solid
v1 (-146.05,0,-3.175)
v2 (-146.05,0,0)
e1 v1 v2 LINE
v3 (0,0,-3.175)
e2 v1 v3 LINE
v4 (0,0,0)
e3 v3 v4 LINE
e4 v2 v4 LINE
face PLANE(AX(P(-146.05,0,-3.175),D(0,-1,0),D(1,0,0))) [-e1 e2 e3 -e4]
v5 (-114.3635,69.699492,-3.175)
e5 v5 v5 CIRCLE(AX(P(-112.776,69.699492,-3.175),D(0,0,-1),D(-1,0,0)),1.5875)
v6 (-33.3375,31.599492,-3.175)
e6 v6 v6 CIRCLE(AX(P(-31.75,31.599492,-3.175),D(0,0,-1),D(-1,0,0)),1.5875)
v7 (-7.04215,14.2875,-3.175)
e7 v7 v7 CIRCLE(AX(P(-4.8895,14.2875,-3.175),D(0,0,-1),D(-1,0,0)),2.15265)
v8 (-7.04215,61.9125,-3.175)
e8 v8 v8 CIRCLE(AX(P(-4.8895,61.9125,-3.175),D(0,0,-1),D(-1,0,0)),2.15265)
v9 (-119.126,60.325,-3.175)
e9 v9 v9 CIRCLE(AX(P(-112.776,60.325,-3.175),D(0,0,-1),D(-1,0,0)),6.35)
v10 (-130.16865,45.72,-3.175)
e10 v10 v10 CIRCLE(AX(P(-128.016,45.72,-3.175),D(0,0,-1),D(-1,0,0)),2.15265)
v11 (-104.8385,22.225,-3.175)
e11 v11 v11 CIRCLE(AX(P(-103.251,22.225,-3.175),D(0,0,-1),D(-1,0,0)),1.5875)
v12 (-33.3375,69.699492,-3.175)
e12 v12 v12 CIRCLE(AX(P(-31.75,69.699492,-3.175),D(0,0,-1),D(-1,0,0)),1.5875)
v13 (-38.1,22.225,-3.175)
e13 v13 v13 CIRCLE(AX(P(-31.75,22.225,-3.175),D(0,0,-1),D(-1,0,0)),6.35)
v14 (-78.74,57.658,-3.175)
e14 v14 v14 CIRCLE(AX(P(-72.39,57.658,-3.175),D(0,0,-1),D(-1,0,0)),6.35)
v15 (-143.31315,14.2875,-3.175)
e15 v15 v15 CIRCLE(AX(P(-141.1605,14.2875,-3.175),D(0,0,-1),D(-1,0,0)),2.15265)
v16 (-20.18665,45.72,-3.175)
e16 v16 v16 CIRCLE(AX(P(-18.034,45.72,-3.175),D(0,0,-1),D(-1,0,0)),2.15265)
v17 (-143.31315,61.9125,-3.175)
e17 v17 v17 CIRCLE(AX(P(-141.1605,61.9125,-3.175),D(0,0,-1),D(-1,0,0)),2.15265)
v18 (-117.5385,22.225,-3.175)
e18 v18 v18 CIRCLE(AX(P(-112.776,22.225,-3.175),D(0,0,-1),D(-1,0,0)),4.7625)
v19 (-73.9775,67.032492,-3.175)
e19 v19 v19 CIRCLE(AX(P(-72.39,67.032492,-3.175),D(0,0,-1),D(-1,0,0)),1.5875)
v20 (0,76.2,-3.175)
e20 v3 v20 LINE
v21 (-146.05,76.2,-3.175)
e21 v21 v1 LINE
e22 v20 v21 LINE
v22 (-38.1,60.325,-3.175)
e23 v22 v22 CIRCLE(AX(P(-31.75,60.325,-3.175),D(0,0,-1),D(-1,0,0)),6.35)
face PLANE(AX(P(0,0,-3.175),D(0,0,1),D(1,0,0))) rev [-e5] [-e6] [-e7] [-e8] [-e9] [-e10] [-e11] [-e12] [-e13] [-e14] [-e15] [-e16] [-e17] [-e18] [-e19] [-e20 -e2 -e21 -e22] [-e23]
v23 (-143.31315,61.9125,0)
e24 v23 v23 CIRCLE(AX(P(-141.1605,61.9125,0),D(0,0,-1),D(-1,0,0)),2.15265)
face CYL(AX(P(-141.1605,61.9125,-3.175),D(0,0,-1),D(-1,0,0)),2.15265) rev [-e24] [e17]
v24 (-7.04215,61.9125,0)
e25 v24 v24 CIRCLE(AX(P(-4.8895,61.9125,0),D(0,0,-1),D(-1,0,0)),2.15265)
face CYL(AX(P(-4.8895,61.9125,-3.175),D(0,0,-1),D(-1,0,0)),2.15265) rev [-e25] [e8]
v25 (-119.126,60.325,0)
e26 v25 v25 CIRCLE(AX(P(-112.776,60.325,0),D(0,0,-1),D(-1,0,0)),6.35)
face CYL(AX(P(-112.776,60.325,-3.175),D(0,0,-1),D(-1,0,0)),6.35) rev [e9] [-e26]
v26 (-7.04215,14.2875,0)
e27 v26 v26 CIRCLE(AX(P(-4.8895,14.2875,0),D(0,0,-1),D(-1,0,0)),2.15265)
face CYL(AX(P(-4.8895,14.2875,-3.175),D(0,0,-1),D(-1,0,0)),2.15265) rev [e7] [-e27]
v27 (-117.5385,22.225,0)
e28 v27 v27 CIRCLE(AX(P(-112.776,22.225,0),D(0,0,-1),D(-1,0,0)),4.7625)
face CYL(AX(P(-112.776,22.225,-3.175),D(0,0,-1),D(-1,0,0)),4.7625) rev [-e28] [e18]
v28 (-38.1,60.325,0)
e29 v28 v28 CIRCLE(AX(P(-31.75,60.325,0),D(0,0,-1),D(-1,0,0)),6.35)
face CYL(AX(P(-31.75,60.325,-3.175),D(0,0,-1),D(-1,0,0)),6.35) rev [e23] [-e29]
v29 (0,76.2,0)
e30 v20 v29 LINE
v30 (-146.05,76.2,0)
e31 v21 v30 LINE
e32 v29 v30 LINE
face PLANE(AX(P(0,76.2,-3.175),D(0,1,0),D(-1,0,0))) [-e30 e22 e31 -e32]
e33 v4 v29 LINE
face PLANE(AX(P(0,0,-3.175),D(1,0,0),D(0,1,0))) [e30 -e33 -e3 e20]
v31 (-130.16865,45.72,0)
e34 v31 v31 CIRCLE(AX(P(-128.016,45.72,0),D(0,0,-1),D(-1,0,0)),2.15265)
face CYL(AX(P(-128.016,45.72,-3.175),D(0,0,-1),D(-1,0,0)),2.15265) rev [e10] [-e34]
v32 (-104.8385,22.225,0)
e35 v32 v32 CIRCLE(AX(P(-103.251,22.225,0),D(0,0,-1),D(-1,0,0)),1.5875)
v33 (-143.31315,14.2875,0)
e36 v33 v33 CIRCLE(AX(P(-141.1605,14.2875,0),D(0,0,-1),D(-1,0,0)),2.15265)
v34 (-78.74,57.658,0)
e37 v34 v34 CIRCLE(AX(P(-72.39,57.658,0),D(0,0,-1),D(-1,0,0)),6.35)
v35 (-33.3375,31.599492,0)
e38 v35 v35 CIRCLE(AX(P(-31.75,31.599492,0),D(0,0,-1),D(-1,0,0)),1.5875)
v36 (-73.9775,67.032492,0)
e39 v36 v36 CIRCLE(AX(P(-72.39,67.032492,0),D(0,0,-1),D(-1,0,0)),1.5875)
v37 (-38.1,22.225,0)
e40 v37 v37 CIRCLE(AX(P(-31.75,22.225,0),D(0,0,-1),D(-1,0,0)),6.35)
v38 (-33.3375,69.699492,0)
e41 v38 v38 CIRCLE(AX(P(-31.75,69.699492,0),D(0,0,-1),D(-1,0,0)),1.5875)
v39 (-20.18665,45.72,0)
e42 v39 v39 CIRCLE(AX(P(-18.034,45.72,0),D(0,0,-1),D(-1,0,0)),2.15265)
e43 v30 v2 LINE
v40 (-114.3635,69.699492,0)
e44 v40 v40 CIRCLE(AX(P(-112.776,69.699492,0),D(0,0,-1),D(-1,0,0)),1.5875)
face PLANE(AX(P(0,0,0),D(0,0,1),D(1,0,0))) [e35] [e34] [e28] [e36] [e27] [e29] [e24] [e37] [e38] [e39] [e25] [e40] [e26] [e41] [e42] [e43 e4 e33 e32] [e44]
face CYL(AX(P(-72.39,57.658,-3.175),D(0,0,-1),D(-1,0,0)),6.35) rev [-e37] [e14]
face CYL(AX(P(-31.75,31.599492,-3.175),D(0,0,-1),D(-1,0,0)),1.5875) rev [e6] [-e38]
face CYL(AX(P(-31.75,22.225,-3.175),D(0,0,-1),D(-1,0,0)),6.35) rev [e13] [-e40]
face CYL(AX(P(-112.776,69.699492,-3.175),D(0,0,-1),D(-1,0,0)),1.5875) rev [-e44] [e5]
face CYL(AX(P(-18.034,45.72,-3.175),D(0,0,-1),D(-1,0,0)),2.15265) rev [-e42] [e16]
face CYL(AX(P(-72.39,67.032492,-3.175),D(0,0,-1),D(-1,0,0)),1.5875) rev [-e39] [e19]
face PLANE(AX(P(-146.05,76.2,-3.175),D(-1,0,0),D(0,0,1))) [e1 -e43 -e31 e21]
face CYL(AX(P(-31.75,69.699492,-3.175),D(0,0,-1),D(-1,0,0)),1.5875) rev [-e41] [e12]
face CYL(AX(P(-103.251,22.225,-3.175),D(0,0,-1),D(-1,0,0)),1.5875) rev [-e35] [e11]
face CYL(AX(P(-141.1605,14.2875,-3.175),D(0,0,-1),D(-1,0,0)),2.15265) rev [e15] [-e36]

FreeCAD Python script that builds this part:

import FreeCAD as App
import Part
import Sketcher
from FreeCAD import Vector
Q = App.Units.Quantity

doc = App.newDocument("Part")
params = doc.addObject("Spreadsheet::Sheet", "Params")
for row, (alias, value) in enumerate([
    ("sketch1_height", "3 in"),
    ("sketch1_width", "5.75 in"),
    ("pad1_length", "0.125 in"),
    ("hole_diameter", "0.1695 in"),
    ("sketch3_diameter", "0.375 in"),
    ("hole2_diameter", "0.375 in"),
    ("sketch4_diameter", "0.5 in"),
    ("hole3_diameter", "0.5 in"),
    ("sketch5_diameter", "0.125 in"),
    ("hole4_diameter", "0.125 in"),
], start=1):
    params.set(f"A{row}", alias)
    params.set(f"B{row}", "=" + value)
    params.setAlias(f"B{row}", alias)

body = doc.addObject("PartDesign::Body", "Body")

# Sketch on XY plane
sketch1 = body.newObject("Sketcher::SketchObject", "Sketch")
sketch1.AttachmentSupport = (doc.getObject("XY_Plane"), [""])
sketch1.MapMode = "FlatFace"
sketch1.addGeometry([
    Part.LineSegment(Vector(-146, 76, 0), Vector(-146, 0, 0)),
    Part.LineSegment(Vector(-146, 0, 0), Vector(0, 0, 0)),
    Part.LineSegment(Vector(0, 0, 0), Vector(0, 76, 0)),
    Part.LineSegment(Vector(0, 76, 0), Vector(-146, 76, 0)),
], False)
sketch1.addConstraint([
    Sketcher.Constraint("Coincident", 0, 2, 1, 1),
    Sketcher.Constraint("Coincident", 1, 2, 2, 1),
    Sketcher.Constraint("Coincident", 2, 2, 3, 1),
    Sketcher.Constraint("Coincident", 3, 2, 0, 1),
    Sketcher.Constraint("Vertical", 0),
    Sketcher.Constraint("Horizontal", 1),
    Sketcher.Constraint("Vertical", 2),
    Sketcher.Constraint("Horizontal", 3),
    Sketcher.Constraint("Coincident", 1, 2, -1, 1),
    Sketcher.Constraint("DistanceY", 0, 2, 0, 1, Q("3 in")),
    Sketcher.Constraint("DistanceX", 1, 1, 1, 2, Q("5.75 in")),
])
sketch1.setExpression("Constraints[9]", "Params.sketch1_height")
sketch1.setExpression("Constraints[10]", "Params.sketch1_width")
pad1 = body.newObject("PartDesign::Pad", "Pad")
pad1.Profile = sketch1
pad1.setExpression("Length", "Params.pad1_length")
pad1.Reversed = True

# Sketch on XY plane
sketch2 = body.newObject("Sketcher::SketchObject", "Sketch001")
sketch2.AttachmentSupport = (doc.getObject("XY_Plane"), [""])
sketch2.MapMode = "FlatFace"
sketch2.AttachmentOffset = App.Placement(Vector(0, 0, -0.125 * 25.4), App.Rotation())
sketch2.addGeometry([
    Part.Circle(Vector(-4.9, 61.9, 0), Vector(0, 0, 1), 2.2),  # 0
    Part.Circle(Vector(-4.9, 14.3, 0), Vector(0, 0, 1), 2.2),  # 1
    Part.Circle(Vector(-141.2, 14.3, 0), Vector(0, 0, 1), 2.2),  # 2
    Part.Circle(Vector(-141.2, 61.9, 0), Vector(0, 0, 1), 2.2),  # 3
    Part.Circle(Vector(-128, 45.7, 0), Vector(0, 0, 1), 2.2),  # 4
    Part.Circle(Vector(-18, 45.7, 0), Vector(0, 0, 1), 2.2),  # 5
], False)
sketch2.addConstraint([
    Sketcher.Constraint("Equal", 0, 1),
    Sketcher.Constraint("Equal", 1, 2),
    Sketcher.Constraint("Equal", 2, 3),
    Sketcher.Constraint("Equal", 3, 4),
    Sketcher.Constraint("Equal", 4, 5),
    Sketcher.Constraint("Horizontal", 1, 3, 2, 3),
    Sketcher.Constraint("Horizontal", 0, 3, 3, 3),
    Sketcher.Constraint("Horizontal", 4, 3, 5, 3),
    Sketcher.Constraint("Vertical", 0, 3, 1, 3),
    Sketcher.Constraint("Vertical", 2, 3, 3, 3),
    Sketcher.Constraint("Diameter", 0, Q("0.1695 in")),
    Sketcher.Constraint("DistanceY", -1, 1, 4, 3, Q("1.8 in")),
    Sketcher.Constraint("DistanceX", 4, 3, -1, 1, Q("5.04 in")),
    Sketcher.Constraint("DistanceX", 5, 3, -1, 1, Q("0.71 in")),
    Sketcher.Constraint("DistanceY", -1, 1, 0, 3, Q("2.4375 in")),
    Sketcher.Constraint("DistanceY", -1, 1, 1, 3, Q("0.5625 in")),
    Sketcher.Constraint("DistanceX", 2, 3, 1, 3, Q("5.365 in")),
    Sketcher.Constraint("DistanceX", 0, 3, -1, 1, Q("0.1925 in")),
])
doc.recompute()
hole = body.newObject("PartDesign::Hole", "Hole")
hole.Profile = sketch2
hole.ThreadType = "None"
hole.setExpression("Diameter", "Params.hole_diameter")
hole.DepthType = "ThroughAll"
hole.Reversed = True

# Sketch on XY plane
sketch3 = body.newObject("Sketcher::SketchObject", "Sketch002")
sketch3.AttachmentSupport = (doc.getObject("XY_Plane"), [""])
sketch3.MapMode = "FlatFace"
sketch3.AttachmentOffset = App.Placement(Vector(0, 0, -0.125 * 25.4), App.Rotation())
sketch3.addGeometry(Part.Circle(Vector(-112.8, 22.2, 0), Vector(0, 0, 1), 4.8), False)
sketch3.addConstraint([
    Sketcher.Constraint("Diameter", 0, Q("0.375 in")),
    Sketcher.Constraint("DistanceX", 0, 3, -1, 1, Q("4.44 in")),
    Sketcher.Constraint("DistanceY", -1, 1, 0, 3, Q("0.875 in")),
])
sketch3.setExpression("Constraints[0]", "Params.sketch3_diameter")
doc.recompute()
hole2 = body.newObject("PartDesign::Hole", "Hole001")
hole2.Profile = sketch3
hole2.ThreadType = "None"
hole2.setExpression("Diameter", "Params.hole2_diameter")
hole2.DepthType = "ThroughAll"
hole2.Reversed = True

# Sketch on XY plane
sketch4 = body.newObject("Sketcher::SketchObject", "Sketch003")
sketch4.AttachmentSupport = (doc.getObject("XY_Plane"), [""])
sketch4.MapMode = "FlatFace"
sketch4.AttachmentOffset = App.Placement(Vector(0, 0, -0.125 * 25.4), App.Rotation())
sketch4.addGeometry([
    Part.Circle(Vector(-32, 60, 0), Vector(0, 0, 1), 6),
    Part.Circle(Vector(-72, 58, 0), Vector(0, 0, 1), 6),
    Part.Circle(Vector(-113, 60, 0), Vector(0, 0, 1), 6),
    Part.Circle(Vector(-32, 22, 0), Vector(0, 0, 1), 6),
], False)
sketch4.addConstraint([
    Sketcher.Constraint("Equal", 0, 1),
    Sketcher.Constraint("Equal", 1, 2),
    Sketcher.Constraint("Equal", 2, 3),
    Sketcher.Constraint("Horizontal", 0, 3, 2, 3),
    Sketcher.Constraint("Vertical", 0, 3, 3, 3),
    Sketcher.Constraint("Diameter", 0, Q("0.5 in")),
    Sketcher.Constraint("DistanceX", 1, 3, 0, 3, Q("1.6 in")),
    Sketcher.Constraint("DistanceY", 3, 3, 0, 3, Q("1.5 in")),
    Sketcher.Constraint("DistanceX", 0, 3, -1, 1, Q("1.25 in")),
    Sketcher.Constraint("DistanceY", -1, 1, 1, 3, Q("2.27 in")),
    Sketcher.Constraint("DistanceX", 2, 3, -1, 1, Q("4.44 in")),
    Sketcher.Constraint("DistanceY", -1, 1, 0, 3, Q("2.375 in")),
])
sketch4.setExpression("Constraints[5]", "Params.sketch4_diameter")
doc.recompute()
hole3 = body.newObject("PartDesign::Hole", "Hole002")
hole3.Profile = sketch4
hole3.ThreadType = "None"
hole3.setExpression("Diameter", "Params.hole3_diameter")
hole3.DepthType = "ThroughAll"
hole3.Reversed = True

# Sketch on XY plane
sketch5 = body.newObject("Sketcher::SketchObject", "Sketch004")
sketch5.AttachmentSupport = (doc.getObject("XY_Plane"), [""])
sketch5.MapMode = "FlatFace"
sketch5.AttachmentOffset = App.Placement(Vector(0, 0, -0.125 * 25.4), App.Rotation())
sketch5.addGeometry([
    Part.Circle(Vector(-31.8, 69.7, 0), Vector(0, 0, 1), 1.6),  # 0
    Part.Circle(Vector(-112.8, 69.7, 0), Vector(0, 0, 1), 1.6),  # 1
    Part.Circle(Vector(-103.3, 22.2, 0), Vector(0, 0, 1), 1.6),  # 2
    Part.Circle(Vector(-72.4, 67, 0), Vector(0, 0, 1), 1.6),  # 3
    Part.Circle(Vector(-31.8, 31.6, 0), Vector(0, 0, 1), 1.6),  # 4
], False)
sketch5.addConstraint([
    Sketcher.Constraint("Equal", 0, 1),
    Sketcher.Constraint("Equal", 1, 2),
    Sketcher.Constraint("Equal", 2, 3),
    Sketcher.Constraint("Equal", 3, 4),
    Sketcher.Constraint("Horizontal", 0, 3, 1, 3),
    Sketcher.Constraint("Vertical", 0, 3, 4, 3),
    Sketcher.Constraint("Diameter", 0, Q("0.125 in")),
    Sketcher.Constraint("DistanceX", 3, 3, 0, 3, Q("1.6 in")),
    Sketcher.Constraint("DistanceY", 4, 3, 0, 3, Q("1.5 in")),
    Sketcher.Constraint("DistanceX", 0, 3, -1, 1, Q("1.25 in")),
    Sketcher.Constraint("DistanceX", 1, 3, -1, 1, Q("4.44 in")),
    Sketcher.Constraint("DistanceX", 2, 3, -1, 1, Q("4.065 in")),
    Sketcher.Constraint("DistanceY", -1, 1, 2, 3, Q("0.875 in")),
    Sketcher.Constraint("DistanceY", 3, 3, 1, 3, Q("0.105 in")),
    Sketcher.Constraint("DistanceY", -1, 1, 0, 3, 69.699492),
])
sketch5.setExpression("Constraints[6]", "Params.sketch5_diameter")
doc.recompute()
hole4 = body.newObject("PartDesign::Hole", "Hole003")
hole4.Profile = sketch5
hole4.ThreadType = "None"
hole4.setExpression("Diameter", "Params.hole4_diameter")
hole4.DepthType = "ThroughAll"
hole4.Reversed = True

doc.recompute()
